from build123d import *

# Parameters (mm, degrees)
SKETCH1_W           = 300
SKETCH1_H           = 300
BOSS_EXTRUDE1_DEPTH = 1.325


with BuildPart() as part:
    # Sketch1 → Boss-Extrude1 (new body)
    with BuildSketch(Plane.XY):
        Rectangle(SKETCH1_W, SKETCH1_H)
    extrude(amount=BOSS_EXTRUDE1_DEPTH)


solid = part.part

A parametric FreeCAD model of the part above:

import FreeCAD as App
import Part
import Sketcher
from FreeCAD import Vector

doc = App.newDocument("Part")
body = doc.addObject("PartDesign::Body", "Body")

# Sketch on XY plane
sketch1 = body.newObject("Sketcher::SketchObject", "Sketch")
sketch1.AttachmentSupport = (doc.getObject("XY_Plane"), [""])
sketch1.MapMode = "FlatFace"
sketch1.addGeometry(Part.LineSegment(Vector(-150, 150, 0), Vector(-150, -150, 0)), False)
sketch1.addGeometry(Part.LineSegment(Vector(-150, -150, 0), Vector(150, -150, 0)), False)
sketch1.addGeometry(Part.LineSegment(Vector(150, -150, 0), Vector(150, 150, 0)), False)
sketch1.addGeometry(Part.LineSegment(Vector(150, 150, 0), Vector(-150, 150, 0)), False)
sketch1.addConstraint(Sketcher.Constraint("Coincident", 0, 2, 1, 1))
sketch1.addConstraint(Sketcher.Constraint("Coincident", 1, 2, 2, 1))
sketch1.addConstraint(Sketcher.Constraint("Coincident", 2, 2, 3, 1))
sketch1.addConstraint(Sketcher.Constraint("Coincident", 3, 2, 0, 1))
sketch1.addConstraint(Sketcher.Constraint("Vertical", 0))
sketch1.addConstraint(Sketcher.Constraint("Horizontal", 1))
sketch1.addConstraint(Sketcher.Constraint("Vertical", 2))
sketch1.addConstraint(Sketcher.Constraint("Horizontal", 3))
sketch1.addConstraint(Sketcher.Constraint("Symmetric", 0, 2, 2, 2, -1, 1))
sketch1.addConstraint(Sketcher.Constraint("Equal", 3, 0))
sketch1.addConstraint(Sketcher.Constraint("DistanceX", 1, 1, 1, 2, 300.0))
pad1 = body.newObject("PartDesign::Pad", "Pad")
pad1.Profile = sketch1
pad1.Length = 1.325

doc.recompute()
